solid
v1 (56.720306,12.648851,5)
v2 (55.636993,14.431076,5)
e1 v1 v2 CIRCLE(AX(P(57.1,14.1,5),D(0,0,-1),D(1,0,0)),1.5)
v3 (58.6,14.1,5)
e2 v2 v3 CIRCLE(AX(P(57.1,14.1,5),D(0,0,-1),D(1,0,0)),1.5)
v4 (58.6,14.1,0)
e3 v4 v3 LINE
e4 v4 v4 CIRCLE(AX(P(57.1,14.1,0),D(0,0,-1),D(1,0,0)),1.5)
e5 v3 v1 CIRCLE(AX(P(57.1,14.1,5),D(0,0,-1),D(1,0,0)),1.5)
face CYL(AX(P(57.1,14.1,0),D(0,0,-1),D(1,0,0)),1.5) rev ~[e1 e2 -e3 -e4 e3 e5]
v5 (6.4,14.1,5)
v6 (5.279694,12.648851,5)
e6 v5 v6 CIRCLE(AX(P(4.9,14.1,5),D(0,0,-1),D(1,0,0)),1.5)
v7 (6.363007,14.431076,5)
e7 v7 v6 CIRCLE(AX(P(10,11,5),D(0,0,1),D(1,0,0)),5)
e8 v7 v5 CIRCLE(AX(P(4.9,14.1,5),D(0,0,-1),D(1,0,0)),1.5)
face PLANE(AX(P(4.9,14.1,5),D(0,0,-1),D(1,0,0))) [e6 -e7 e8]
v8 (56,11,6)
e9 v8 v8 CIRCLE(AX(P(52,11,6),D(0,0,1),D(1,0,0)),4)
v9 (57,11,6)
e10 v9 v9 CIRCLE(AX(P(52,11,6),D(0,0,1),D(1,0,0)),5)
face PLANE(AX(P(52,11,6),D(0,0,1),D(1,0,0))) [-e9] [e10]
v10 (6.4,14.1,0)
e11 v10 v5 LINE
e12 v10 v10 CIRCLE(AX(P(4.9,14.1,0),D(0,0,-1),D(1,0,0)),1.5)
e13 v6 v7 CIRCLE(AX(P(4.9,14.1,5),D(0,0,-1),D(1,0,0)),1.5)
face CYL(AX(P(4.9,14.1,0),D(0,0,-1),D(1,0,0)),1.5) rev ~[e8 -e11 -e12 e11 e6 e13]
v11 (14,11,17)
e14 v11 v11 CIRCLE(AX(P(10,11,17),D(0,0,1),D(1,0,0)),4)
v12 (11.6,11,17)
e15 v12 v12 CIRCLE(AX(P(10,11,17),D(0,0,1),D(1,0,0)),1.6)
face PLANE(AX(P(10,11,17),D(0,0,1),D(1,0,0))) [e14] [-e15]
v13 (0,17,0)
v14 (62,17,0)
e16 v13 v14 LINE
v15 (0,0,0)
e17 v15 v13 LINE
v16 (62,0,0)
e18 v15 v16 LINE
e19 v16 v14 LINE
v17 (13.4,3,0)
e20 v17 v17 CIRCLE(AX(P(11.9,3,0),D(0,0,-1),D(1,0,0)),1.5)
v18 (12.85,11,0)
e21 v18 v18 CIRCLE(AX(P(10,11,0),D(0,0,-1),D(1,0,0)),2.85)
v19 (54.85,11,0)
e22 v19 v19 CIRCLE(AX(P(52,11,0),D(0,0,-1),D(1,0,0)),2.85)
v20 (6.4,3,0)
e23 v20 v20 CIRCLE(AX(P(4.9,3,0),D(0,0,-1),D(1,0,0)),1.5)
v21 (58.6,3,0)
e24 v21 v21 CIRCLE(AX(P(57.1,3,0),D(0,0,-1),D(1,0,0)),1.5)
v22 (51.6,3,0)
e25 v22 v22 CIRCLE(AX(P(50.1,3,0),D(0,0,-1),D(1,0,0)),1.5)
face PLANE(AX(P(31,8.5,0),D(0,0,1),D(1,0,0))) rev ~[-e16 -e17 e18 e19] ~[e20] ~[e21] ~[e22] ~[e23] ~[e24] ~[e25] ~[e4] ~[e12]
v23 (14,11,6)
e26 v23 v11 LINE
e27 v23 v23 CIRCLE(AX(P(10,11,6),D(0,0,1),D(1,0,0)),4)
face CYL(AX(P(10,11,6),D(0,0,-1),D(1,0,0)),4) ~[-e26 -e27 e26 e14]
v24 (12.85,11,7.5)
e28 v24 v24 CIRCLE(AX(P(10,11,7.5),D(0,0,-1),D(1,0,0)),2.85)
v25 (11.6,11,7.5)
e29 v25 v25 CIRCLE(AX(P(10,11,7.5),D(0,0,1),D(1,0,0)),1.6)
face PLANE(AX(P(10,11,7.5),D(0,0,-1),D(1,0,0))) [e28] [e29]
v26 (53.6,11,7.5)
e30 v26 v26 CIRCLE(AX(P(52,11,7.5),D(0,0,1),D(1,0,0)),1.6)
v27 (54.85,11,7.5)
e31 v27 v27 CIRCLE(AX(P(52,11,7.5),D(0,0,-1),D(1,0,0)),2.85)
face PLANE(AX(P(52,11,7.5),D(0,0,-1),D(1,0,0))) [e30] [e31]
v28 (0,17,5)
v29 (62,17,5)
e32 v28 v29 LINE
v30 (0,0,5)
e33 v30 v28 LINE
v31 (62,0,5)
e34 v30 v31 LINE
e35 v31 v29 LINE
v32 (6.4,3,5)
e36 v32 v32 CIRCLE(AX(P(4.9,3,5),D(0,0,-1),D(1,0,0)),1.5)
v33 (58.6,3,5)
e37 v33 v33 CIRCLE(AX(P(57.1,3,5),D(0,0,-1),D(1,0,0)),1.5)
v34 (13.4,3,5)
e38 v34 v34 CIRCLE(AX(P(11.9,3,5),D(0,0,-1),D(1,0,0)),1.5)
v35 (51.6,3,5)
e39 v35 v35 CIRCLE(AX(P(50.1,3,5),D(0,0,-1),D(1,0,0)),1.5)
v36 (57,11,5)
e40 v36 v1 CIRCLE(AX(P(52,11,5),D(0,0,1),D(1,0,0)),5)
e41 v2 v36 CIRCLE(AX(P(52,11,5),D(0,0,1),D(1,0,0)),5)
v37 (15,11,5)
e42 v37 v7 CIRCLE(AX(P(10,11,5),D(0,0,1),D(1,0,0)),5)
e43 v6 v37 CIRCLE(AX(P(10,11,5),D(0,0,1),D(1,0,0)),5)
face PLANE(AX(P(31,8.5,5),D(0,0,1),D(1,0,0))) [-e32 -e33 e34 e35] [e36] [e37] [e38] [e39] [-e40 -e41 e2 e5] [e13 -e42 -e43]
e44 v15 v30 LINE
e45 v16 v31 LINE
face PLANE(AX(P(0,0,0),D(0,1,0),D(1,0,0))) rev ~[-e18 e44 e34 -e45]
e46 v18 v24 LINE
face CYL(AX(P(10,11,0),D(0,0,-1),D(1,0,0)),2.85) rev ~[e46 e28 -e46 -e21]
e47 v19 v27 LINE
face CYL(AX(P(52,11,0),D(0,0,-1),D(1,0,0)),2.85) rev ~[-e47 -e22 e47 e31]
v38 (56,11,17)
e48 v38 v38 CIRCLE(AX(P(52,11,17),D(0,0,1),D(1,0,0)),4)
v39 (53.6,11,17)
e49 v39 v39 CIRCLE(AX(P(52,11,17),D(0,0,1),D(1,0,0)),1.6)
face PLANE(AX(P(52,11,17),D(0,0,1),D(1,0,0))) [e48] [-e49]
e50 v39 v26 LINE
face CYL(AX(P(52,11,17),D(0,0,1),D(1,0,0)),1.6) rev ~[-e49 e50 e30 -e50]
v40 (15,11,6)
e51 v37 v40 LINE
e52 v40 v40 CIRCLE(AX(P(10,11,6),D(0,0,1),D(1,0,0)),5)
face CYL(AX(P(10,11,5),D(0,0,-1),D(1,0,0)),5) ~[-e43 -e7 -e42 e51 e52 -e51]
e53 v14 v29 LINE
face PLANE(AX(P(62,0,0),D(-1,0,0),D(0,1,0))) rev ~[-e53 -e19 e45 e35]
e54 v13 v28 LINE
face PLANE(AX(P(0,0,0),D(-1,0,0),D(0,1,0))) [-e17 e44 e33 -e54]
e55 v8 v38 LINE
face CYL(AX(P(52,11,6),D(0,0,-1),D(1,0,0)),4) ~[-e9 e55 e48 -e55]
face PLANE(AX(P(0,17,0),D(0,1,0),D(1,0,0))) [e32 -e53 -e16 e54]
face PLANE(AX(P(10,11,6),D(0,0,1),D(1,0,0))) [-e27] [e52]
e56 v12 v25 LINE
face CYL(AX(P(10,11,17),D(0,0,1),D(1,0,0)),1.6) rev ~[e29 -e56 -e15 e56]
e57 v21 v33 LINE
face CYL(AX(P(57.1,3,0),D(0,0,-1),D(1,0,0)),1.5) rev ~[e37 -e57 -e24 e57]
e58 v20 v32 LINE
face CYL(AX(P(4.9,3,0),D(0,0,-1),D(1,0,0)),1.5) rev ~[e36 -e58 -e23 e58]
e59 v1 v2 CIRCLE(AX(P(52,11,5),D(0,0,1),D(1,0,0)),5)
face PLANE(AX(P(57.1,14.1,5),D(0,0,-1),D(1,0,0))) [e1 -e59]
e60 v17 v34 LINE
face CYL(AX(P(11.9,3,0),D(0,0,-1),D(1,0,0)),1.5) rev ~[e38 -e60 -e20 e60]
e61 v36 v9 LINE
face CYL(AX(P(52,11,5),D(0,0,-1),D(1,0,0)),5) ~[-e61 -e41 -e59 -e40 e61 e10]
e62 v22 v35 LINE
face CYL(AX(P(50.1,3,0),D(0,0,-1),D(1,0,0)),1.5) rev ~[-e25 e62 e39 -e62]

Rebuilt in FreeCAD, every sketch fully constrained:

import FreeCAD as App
import Part
import Sketcher
from FreeCAD import Vector
Q = App.Units.Quantity

doc = App.newDocument("Part")
body = doc.addObject("PartDesign::Body", "Body")

# Sketch on XY plane
sketch1 = body.newObject("Sketcher::SketchObject", "Sketch")
sketch1.AttachmentSupport = (doc.getObject("XY_Plane"), [""])
sketch1.MapMode = "FlatFace"
sketch1.addGeometry([
    Part.LineSegment(Vector(0, 17, 0), Vector(0, 0, 0)),
    Part.LineSegment(Vector(0, 0, 0), Vector(62, 0, 0)),
    Part.LineSegment(Vector(62, 0, 0), Vector(62, 17, 0)),
    Part.LineSegment(Vector(62, 17, 0), Vector(0, 17, 0)),
], False)
sketch1.addConstraint([
    Sketcher.Constraint("Coincident", 0, 2, 1, 1),
    Sketcher.Constraint("Coincident", 1, 2, 2, 1),
    Sketcher.Constraint("Coincident", 2, 2, 3, 1),
    Sketcher.Constraint("Coincident", 3, 2, 0, 1),
    Sketcher.Constraint("Vertical", 0),
    Sketcher.Constraint("Horizontal", 1),
    Sketcher.Constraint("Vertical", 2),
    Sketcher.Constraint("Horizontal", 3),
    Sketcher.Constraint("Coincident", 0, 2, -1, 1),
    Sketcher.Constraint("DistanceX", 1, 1, 1, 2, Q("62 mm")),
    Sketcher.Constraint("DistanceY", 0, 2, 0, 1, Q("17 mm")),
])
pad1 = body.newObject("PartDesign::Pad", "Pad")
pad1.Profile = sketch1
pad1.Length = 5

# Sketch on XY plane
sketch2 = body.newObject("Sketcher::SketchObject", "Sketch001")
sketch2.AttachmentSupport = (doc.getObject("XY_Plane"), [""])
sketch2.MapMode = "FlatFace"
sketch2.AttachmentOffset = App.Placement(Vector(0, 0, 5), App.Rotation())
sketch2.addGeometry([
    Part.Circle(Vector(10, 11, 0), Vector(0, 0, 1), 5),
    Part.Circle(Vector(52, 11, 0), Vector(0, 0, 1), 5),
], False)
sketch2.addConstraint([
    Sketcher.Constraint("Equal", 0, 1),
    Sketcher.Constraint("Horizontal", 0, 3, 1, 3),
    Sketcher.Constraint("Diameter", 0, Q("10 mm")),
    Sketcher.Constraint("DistanceX", -1, 1, 0, 3, Q("10 mm")),
    Sketcher.Constraint("DistanceY", -1, 1, 0, 3, Q("11 mm")),
    Sketcher.Constraint("DistanceX", -1, 1, 1, 3, Q("52 mm")),
])
pad2 = body.newObject("PartDesign::Pad", "Pad001")
pad2.Profile = sketch2
pad2.Length = 1

# Sketch on XY plane
sketch3 = body.newObject("Sketcher::SketchObject", "Sketch002")
sketch3.AttachmentSupport = (doc.getObject("XY_Plane"), [""])
sketch3.MapMode = "FlatFace"
sketch3.AttachmentOffset = App.Placement(Vector(0, 0, 6), App.Rotation())
sketch3.addGeometry([
    Part.Circle(Vector(52, 11, 0), Vector(0, 0, 1), 4),
    Part.Circle(Vector(10, 11, 0), Vector(0, 0, 1), 4),
], False)
sketch3.addConstraint([
    Sketcher.Constraint("Equal", 0, 1),
    Sketcher.Constraint("Horizontal", 0, 3, 1, 3),
    Sketcher.Constraint("Diameter", 0, Q("8 mm")),
    Sketcher.Constraint("DistanceX", -1, 1, 0, 3, Q("52 mm")),
    Sketcher.Constraint("DistanceY", -1, 1, 0, 3, Q("11 mm")),
    Sketcher.Constraint("DistanceX", -1, 1, 1, 3, Q("10 mm")),
])
pad3 = body.newObject("PartDesign::Pad", "Pad002")
pad3.Profile = sketch3
pad3.Length = 11

# Sketch on XY plane
sketch4 = body.newObject("Sketcher::SketchObject", "Sketch003")
sketch4.AttachmentSupport = (doc.getObject("XY_Plane"), [""])
sketch4.MapMode = "FlatFace"
sketch4.addGeometry([
    Part.Circle(Vector(52, 11, 0), Vector(0, 0, 1), 2.9),
    Part.Circle(Vector(10, 11, 0), Vector(0, 0, 1), 2.9),
], False)
sketch4.addConstraint([
    Sketcher.Constraint("Equal", 0, 1),
    Sketcher.Constraint("Horizontal", 0, 3, 1, 3),
    Sketcher.Constraint("Diameter", 0, Q("5.7 mm")),
    Sketcher.Constraint("DistanceX", -1, 1, 0, 3, Q("52 mm")),
    Sketcher.Constraint("DistanceY", -1, 1, 0, 3, Q("11 mm")),
    Sketcher.Constraint("DistanceX", -1, 1, 1, 3, Q("10 mm")),
])
pocket1 = body.newObject("PartDesign::Pocket", "Pocket")
pocket1.Profile = sketch4
pocket1.Length = 7.5
pocket1.Reversed = True

# Sketch on XY plane
sketch5 = body.newObject("Sketcher::SketchObject", "Sketch004")
sketch5.AttachmentSupport = (doc.getObject("XY_Plane"), [""])
sketch5.MapMode = "FlatFace"
sketch5.AttachmentOffset = App.Placement(Vector(0, 0, 17), App.Rotation())
sketch5.addGeometry([
    Part.Circle(Vector(52, 11, 0), Vector(0, 0, 1), 1.6),
    Part.Circle(Vector(10, 11, 0), Vector(0, 0, 1), 1.6),
], False)
sketch5.addConstraint([
    Sketcher.Constraint("Equal", 0, 1),
    Sketcher.Constraint("Horizontal", 0, 3, 1, 3),
    Sketcher.Constraint("Diameter", 0, Q("3.2 mm")),
    Sketcher.Constraint("DistanceX", -1, 1, 0, 3, Q("52 mm")),
    Sketcher.Constraint("DistanceY", -1, 1, 0, 3, Q("11 mm")),
    Sketcher.Constraint("DistanceX", -1, 1, 1, 3, Q("10 mm")),
])
pocket2 = body.newObject("PartDesign::Pocket", "Pocket001")
pocket2.Profile = sketch5
pocket2.Length = 25

# Sketch on XY plane
sketch6 = body.newObject("Sketcher::SketchObject", "Sketch005")
sketch6.AttachmentSupport = (doc.getObject("XY_Plane"), [""])
sketch6.MapMode = "FlatFace"
sketch6.addGeometry([
    Part.Circle(Vector(57.1, 14.1, 0), Vector(0, 0, 1), 1.5),  # 0
    Part.Circle(Vector(50.1, 3, 0), Vector(0, 0, 1), 1.5),  # 1
    Part.Circle(Vector(11.9, 3, 0), Vector(0, 0, 1), 1.5),  # 2
    Part.Circle(Vector(4.9, 14.1, 0), Vector(0, 0, 1), 1.5),  # 3
    Part.Circle(Vector(57.1, 3, 0), Vector(0, 0, 1), 1.5),  # 4
    Part.Circle(Vector(4.9, 3, 0), Vector(0, 0, 1), 1.5),  # 5
], False)
sketch6.addConstraint([
    Sketcher.Constraint("Equal", 0, 1),
    Sketcher.Constraint("Equal", 1, 2),
    Sketcher.Constraint("Equal", 2, 3),
    Sketcher.Constraint("Equal", 3, 4),
    Sketcher.Constraint("Equal", 4, 5),
    Sketcher.Constraint("Horizontal", 1, 3, 2, 3),
    Sketcher.Constraint("Horizontal", 0, 3, 3, 3),
    Sketcher.Constraint("Horizontal", 2, 3, 4, 3),
    Sketcher.Constraint("Horizontal", 4, 3, 5, 3),
    Sketcher.Constraint("Vertical", 0, 3, 4, 3),
    Sketcher.Constraint("Vertical", 3, 3, 5, 3),
    Sketcher.Constraint("Diameter", 0, Q("3 mm")),
    Sketcher.Constraint("DistanceY", -1, 1, 1, 3, Q("3 mm")),
    Sketcher.Constraint("DistanceX", 1, 3, 0, 3, Q("7 mm")),
    Sketcher.Constraint("DistanceX", 3, 3, 2, 3, Q("7 mm")),
    Sketcher.Constraint("DistanceX", -1, 1, 0, 3, Q("57.1 mm")),
    Sketcher.Constraint("DistanceY", -1, 1, 0, 3, Q("14.1 mm")),
    Sketcher.Constraint("DistanceX", -1, 1, 2, 3, Q("11.9 mm")),
])
pocket3 = body.newObject("PartDesign::Pocket", "Pocket002")
pocket3.Profile = sketch6
pocket3.Length = 5
pocket3.Reversed = True

doc.recompute()
